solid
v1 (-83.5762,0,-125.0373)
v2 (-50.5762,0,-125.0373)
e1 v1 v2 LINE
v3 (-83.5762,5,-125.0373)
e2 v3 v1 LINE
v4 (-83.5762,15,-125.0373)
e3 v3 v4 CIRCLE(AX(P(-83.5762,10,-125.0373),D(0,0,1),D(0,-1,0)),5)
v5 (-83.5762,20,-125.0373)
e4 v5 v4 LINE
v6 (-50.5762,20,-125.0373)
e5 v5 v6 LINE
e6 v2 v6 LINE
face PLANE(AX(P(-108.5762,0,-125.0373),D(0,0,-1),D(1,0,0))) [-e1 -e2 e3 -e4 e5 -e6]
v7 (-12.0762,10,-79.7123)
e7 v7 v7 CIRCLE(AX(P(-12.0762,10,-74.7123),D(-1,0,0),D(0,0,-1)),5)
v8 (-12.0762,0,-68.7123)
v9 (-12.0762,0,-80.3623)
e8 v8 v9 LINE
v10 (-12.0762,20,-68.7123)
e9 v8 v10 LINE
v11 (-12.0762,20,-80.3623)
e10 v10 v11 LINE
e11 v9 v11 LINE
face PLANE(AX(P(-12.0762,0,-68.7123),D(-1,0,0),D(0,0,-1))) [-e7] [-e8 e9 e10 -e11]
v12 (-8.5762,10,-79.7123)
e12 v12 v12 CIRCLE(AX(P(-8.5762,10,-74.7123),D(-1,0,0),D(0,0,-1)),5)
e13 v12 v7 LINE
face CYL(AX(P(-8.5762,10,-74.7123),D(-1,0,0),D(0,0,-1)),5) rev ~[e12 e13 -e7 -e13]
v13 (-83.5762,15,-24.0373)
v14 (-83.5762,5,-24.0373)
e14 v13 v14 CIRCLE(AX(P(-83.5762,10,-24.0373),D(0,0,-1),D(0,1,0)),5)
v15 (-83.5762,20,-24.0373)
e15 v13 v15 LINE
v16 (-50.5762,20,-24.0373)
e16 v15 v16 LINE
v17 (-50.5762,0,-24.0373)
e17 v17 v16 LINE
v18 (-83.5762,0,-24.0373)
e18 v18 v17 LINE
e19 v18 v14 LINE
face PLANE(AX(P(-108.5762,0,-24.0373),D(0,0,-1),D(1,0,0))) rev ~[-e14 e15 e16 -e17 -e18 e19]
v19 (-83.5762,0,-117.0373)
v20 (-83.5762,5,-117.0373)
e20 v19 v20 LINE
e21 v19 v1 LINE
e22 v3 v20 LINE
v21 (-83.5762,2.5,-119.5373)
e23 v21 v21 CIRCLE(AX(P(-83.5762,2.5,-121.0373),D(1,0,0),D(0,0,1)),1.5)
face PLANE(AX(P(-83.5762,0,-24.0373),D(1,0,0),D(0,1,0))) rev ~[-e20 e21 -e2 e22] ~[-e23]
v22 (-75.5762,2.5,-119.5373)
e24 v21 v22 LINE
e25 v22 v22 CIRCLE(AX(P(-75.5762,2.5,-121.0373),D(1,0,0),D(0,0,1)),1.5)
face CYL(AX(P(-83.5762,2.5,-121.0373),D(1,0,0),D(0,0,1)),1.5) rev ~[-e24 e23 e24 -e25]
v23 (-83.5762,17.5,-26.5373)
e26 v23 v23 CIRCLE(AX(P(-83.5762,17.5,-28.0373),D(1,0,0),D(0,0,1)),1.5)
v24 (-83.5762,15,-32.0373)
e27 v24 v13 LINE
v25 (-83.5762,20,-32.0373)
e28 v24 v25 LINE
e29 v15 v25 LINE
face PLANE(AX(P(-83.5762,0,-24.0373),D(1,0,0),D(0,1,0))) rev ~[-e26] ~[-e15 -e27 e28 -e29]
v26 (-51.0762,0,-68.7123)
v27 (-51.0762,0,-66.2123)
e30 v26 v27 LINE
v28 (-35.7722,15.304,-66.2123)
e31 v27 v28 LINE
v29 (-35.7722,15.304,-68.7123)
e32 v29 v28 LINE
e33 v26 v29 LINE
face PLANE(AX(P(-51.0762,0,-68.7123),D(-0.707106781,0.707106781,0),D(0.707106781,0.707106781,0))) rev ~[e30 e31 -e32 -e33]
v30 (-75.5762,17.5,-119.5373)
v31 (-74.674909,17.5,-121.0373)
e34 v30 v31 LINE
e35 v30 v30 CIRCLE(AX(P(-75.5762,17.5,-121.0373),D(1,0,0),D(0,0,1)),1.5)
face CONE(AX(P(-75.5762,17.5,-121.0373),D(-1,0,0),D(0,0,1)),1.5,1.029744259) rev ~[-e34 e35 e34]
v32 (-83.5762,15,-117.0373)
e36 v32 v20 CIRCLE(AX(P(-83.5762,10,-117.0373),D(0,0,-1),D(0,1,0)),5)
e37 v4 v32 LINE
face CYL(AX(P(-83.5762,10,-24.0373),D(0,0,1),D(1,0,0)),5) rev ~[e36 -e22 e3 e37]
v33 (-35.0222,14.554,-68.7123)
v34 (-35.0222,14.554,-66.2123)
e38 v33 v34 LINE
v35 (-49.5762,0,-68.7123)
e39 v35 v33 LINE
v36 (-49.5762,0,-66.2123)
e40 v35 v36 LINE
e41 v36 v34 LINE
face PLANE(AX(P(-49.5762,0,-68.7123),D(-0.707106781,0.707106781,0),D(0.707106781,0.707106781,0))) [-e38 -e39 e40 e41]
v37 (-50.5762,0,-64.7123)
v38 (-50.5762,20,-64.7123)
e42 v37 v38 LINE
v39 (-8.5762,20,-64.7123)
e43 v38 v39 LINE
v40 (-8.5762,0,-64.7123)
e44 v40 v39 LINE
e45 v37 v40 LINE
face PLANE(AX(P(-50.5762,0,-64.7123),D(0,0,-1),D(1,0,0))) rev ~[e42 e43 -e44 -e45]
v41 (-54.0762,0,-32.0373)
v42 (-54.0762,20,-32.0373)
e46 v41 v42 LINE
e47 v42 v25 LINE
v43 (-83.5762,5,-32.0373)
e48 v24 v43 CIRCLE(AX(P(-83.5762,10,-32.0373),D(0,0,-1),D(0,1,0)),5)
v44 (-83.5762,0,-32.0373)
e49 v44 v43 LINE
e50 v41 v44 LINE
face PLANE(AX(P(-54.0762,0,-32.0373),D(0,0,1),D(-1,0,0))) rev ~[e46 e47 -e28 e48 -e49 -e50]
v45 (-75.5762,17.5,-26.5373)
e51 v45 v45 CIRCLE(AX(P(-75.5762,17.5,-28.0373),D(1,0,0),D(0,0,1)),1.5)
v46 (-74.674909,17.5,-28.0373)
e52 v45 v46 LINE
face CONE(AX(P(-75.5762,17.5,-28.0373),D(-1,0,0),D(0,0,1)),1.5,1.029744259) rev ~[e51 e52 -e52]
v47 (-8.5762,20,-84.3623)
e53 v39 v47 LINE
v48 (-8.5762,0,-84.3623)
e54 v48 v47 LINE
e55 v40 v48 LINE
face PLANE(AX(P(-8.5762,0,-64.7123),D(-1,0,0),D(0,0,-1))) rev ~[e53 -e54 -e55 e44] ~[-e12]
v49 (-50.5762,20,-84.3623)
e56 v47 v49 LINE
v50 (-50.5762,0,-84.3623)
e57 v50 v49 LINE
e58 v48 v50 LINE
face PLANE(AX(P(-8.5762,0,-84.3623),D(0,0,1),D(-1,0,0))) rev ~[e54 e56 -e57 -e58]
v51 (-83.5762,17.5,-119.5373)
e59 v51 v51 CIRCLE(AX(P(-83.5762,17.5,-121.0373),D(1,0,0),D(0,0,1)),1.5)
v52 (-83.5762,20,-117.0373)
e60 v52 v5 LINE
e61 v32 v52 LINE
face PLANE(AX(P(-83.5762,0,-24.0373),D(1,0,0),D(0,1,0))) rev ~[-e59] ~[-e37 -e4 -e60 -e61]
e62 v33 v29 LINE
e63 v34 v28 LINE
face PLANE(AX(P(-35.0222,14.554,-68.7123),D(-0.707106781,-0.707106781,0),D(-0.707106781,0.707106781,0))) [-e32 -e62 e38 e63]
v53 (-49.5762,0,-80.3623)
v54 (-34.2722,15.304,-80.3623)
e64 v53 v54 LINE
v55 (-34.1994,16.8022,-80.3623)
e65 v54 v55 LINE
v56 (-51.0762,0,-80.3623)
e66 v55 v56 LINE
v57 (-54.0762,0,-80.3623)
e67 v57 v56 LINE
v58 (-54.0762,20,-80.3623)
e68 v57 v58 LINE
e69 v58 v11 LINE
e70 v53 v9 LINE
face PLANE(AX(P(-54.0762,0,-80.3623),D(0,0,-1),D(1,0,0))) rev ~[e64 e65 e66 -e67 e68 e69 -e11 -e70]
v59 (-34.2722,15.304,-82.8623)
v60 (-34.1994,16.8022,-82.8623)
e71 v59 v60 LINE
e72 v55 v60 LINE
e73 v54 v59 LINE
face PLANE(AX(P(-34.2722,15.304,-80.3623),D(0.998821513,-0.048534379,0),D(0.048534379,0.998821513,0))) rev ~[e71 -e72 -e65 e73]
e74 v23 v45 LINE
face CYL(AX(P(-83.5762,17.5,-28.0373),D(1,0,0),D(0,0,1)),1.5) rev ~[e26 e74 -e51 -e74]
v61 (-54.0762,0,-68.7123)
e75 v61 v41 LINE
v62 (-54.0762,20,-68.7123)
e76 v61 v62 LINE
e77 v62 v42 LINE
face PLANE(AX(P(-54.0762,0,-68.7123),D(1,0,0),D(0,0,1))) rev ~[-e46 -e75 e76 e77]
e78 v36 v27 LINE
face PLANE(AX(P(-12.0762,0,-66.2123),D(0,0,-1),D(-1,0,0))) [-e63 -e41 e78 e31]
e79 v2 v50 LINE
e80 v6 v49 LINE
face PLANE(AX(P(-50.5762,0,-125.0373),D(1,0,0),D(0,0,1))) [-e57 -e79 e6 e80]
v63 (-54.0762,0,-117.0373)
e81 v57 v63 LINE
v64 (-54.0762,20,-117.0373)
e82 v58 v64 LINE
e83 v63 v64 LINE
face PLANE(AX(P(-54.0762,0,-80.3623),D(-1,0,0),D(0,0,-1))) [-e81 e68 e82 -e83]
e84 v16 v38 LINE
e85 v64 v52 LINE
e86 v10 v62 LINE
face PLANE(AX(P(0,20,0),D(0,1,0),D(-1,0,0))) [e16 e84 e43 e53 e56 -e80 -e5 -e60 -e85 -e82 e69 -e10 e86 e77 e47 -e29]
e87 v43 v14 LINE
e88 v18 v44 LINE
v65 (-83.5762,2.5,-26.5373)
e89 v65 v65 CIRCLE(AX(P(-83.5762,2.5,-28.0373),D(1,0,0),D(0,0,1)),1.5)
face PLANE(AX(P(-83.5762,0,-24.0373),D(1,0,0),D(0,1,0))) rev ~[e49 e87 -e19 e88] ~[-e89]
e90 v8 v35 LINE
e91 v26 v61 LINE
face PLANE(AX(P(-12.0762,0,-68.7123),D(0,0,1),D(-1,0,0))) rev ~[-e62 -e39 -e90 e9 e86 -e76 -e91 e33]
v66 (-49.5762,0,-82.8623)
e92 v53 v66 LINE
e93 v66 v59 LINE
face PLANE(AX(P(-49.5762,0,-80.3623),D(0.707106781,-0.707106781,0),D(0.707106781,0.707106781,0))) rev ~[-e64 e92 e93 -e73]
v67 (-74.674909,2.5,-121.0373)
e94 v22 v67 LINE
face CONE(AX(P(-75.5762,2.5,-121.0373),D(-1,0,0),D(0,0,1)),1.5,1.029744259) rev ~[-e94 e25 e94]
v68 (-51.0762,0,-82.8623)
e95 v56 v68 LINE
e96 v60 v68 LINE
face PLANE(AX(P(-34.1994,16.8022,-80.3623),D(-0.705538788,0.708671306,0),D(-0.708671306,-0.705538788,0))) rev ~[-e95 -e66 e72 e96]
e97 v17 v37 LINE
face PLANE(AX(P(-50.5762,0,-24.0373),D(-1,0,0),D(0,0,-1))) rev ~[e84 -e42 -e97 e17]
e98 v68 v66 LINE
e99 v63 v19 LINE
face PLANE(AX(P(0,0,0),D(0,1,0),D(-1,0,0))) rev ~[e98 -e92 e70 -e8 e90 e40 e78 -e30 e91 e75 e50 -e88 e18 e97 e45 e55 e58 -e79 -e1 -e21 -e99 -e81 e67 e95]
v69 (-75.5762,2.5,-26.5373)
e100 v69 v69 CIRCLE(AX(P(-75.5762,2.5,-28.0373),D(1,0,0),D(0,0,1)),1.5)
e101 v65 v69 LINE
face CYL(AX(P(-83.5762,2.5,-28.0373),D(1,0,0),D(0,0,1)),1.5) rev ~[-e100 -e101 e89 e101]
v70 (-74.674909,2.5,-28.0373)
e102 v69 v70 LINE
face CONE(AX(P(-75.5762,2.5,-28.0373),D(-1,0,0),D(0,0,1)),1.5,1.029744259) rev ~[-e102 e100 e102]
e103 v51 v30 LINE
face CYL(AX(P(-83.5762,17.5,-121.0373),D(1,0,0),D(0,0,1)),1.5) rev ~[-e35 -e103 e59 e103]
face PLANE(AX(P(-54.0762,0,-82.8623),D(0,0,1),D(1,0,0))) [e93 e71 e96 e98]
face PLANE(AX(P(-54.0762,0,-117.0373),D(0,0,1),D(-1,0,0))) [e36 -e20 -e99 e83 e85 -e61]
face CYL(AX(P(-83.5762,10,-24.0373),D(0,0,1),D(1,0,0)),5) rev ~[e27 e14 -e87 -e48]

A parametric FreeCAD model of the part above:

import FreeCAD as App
import Part
import Sketcher
Q = App.Units.Quantity


def add_polygon(sketch, points):
    """Adds a closed chain of lines whose ends are joined by coincident constraints."""
    first, n = sketch.GeometryCount, len(points)
    for a, b in zip(points, points[1:] + points[:1]):
        sketch.addGeometry(Part.LineSegment(App.Vector(*a, 0), App.Vector(*b, 0)), False)
    for i in range(n):
        sketch.addConstraint(Sketcher.Constraint("Coincident", first + i, 2, first + (i + 1) % n, 1))

doc = App.newDocument("Part")
body = doc.addObject("PartDesign::Body", "Body")

sketch1 = body.newObject("Sketcher::SketchObject", "Sketch")
sketch1.AttachmentSupport = (doc.getObject("XZ_Plane"), [""])
sketch1.MapMode = "FlatFace"
add_polygon(sketch1, [(-51, -24), (-51, -65), (-9, -65), (-9, -84), (-51, -84), (-51, -125), (-109, -125), (-109, -117), (-54, -117), (-54, -80), (-12, -80), (-12, -69), (-54, -69), (-54, -32), (-109, -32), (-109, -24)])
sketch1.addConstraint(Sketcher.Constraint("Vertical", 0))
sketch1.addConstraint(Sketcher.Constraint("Horizontal", 1))
sketch1.addConstraint(Sketcher.Constraint("Vertical", 2))
sketch1.addConstraint(Sketcher.Constraint("Horizontal", 3))
sketch1.addConstraint(Sketcher.Constraint("Vertical", 4))
sketch1.addConstraint(Sketcher.Constraint("Horizontal", 5))
sketch1.addConstraint(Sketcher.Constraint("Vertical", 6))
sketch1.addConstraint(Sketcher.Constraint("Horizontal", 7))
sketch1.addConstraint(Sketcher.Constraint("Vertical", 8))
sketch1.addConstraint(Sketcher.Constraint("Horizontal", 9))
sketch1.addConstraint(Sketcher.Constraint("Vertical", 10))
sketch1.addConstraint(Sketcher.Constraint("Horizontal", 11))
sketch1.addConstraint(Sketcher.Constraint("Vertical", 12))
sketch1.addConstraint(Sketcher.Constraint("Horizontal", 13))
sketch1.addConstraint(Sketcher.Constraint("Vertical", 14))
sketch1.addConstraint(Sketcher.Constraint("Horizontal", 15))
sketch1.addConstraint(Sketcher.Constraint("Vertical", 0, 2, 3, 2))
sketch1.addConstraint(Sketcher.Constraint("Vertical", 8, 2, 11, 2))
sketch1.addConstraint(Sketcher.Constraint("Vertical", 6, 2, 13, 2))
sketch1.addConstraint(Sketcher.Constraint("Equal", 3, 9))
sketch1.addConstraint(Sketcher.Constraint("Equal", 0, 4))
sketch1.addConstraint(Sketcher.Constraint("Equal", 8, 12))
sketch1.addConstraint(Sketcher.Constraint("Equal", 6, 14))
sketch1.addConstraint(Sketcher.Constraint("DistanceX", 1, 1, 1, 2, Q("42 mm")))
sketch1.addConstraint(Sketcher.Constraint("DistanceY", 6, 1, 6, 2, Q("8 mm")))
sketch1.addConstraint(Sketcher.Constraint("DistanceX", 5, 2, 2, 2, Q("100 mm")))
sketch1.addConstraint(Sketcher.Constraint("DistanceY", 3, 2, 8, 2, Q("4 mm")))
sketch1.addConstraint(Sketcher.Constraint("DistanceY", 10, 1, 10, 2, Q("11.65 mm")))
sketch1.addConstraint(Sketcher.Constraint("DistanceX", 7, 2, 4, 2, Q("3.5 mm")))
sketch1.addConstraint(Sketcher.Constraint("DistanceY", 8, 1, 8, 2, Q("36.675 mm")))
sketch1.addConstraint(Sketcher.Constraint("DistanceX", 0, 2, -1, 1, Q("50.5762 mm")))
sketch1.addConstraint(Sketcher.Constraint("DistanceY", 0, 2, -1, 1, Q("64.7123 mm")))
pad1 = body.newObject("PartDesign::Pad", "Pad")
pad1.Profile = sketch1
pad1.Length = 20
pad1.Reversed = True

sketch2 = body.newObject("Sketcher::SketchObject", "Sketch001")
sketch2.AttachmentSupport = (doc.getObject("XY_Plane"), [""])
sketch2.MapMode = "FlatFace"
sketch2.AttachmentOffset = App.Placement(App.Vector(0, 0, -68.7123), App.Rotation())
add_polygon(sketch2, [(-49.6, 0), (-51.1, 0), (-35.8, 15.3), (-35, 14.6)])
sketch2.addConstraint(Sketcher.Constraint("Horizontal", 0))
sketch2.addConstraint(Sketcher.Constraint("PointOnObject", 0, 2, -1))
sketch2.addConstraint(Sketcher.Constraint("Perpendicular", 1, 2))
sketch2.addConstraint(Sketcher.Constraint("Perpendicular", 2, 3))
sketch2.addConstraint(Sketcher.Constraint("DistanceX", 0, 2, 0, 1, Q("1.5 mm")))
sketch2.addConstraint(Sketcher.Constraint("Angle", 1, Q("45 deg")))
sketch2.addConstraint(Sketcher.Constraint("DistanceY", -1, 1, 1, 2, Q("15.304 mm")))
sketch2.addConstraint(Sketcher.Constraint("DistanceX", 0, 2, -1, 1, Q("51.0762 mm")))
pocket1 = body.newObject("PartDesign::Pocket", "Pocket")
pocket1.Profile = sketch2
pocket1.Length = 2.5
pocket1.Reversed = True

sketch3 = body.newObject("Sketcher::SketchObject", "Sketch002")
sketch3.AttachmentSupport = (doc.getObject("XY_Plane"), [""])
sketch3.MapMode = "FlatFace"
sketch3.AttachmentOffset = App.Placement(App.Vector(0, 0, -24.0373), App.Rotation())
sketch3.addGeometry(Part.Circle(App.Vector(-109, 10, 0), App.Vector(0, 0, 1), 5), False)
sketch3.addConstraint(Sketcher.Constraint("Diameter", 0, Q("10 mm")))
sketch3.addConstraint(Sketcher.Constraint("DistanceY", -1, 1, 0, 3, Q("10 mm")))
sketch3.addConstraint(Sketcher.Constraint("DistanceX", 0, 3, -1, 1, Q("108.5762 mm")))
pocket2 = body.newObject("PartDesign::Pocket", "Pocket001")
pocket2.Profile = sketch3
pocket2.Length = 200

sketch4 = body.newObject("Sketcher::SketchObject", "Sketch003")
sketch4.AttachmentSupport = (doc.getObject("XY_Plane"), [""])
sketch4.MapMode = "FlatFace"
sketch4.AttachmentOffset = App.Placement(App.Vector(0, 0, -80.3623), App.Rotation())
add_polygon(sketch4, [(-34.2, 16.8), (-51.1, 0), (-49.6, 0), (-34.3, 15.3)])
sketch4.addConstraint(Sketcher.Constraint("Horizontal", 1))
sketch4.addConstraint(Sketcher.Constraint("PointOnObject", 0, 2, -1))
sketch4.addConstraint(Sketcher.Constraint("Angle", 2, Q("45 deg")))
sketch4.addConstraint(Sketcher.Constraint("DistanceX", 1, 1, 1, 2, Q("1.5 mm")))
sketch4.addConstraint(Sketcher.Constraint("Distance", 3, Q("1.5 mm")))
sketch4.addConstraint(Sketcher.Constraint("DistanceY", -1, 1, 2, 2, Q("15.304 mm")))
sketch4.addConstraint(Sketcher.Constraint("Distance", 0, Q("23.8147 mm")))
sketch4.addConstraint(Sketcher.Constraint("DistanceX", 0, 2, -1, 1, Q("51.0762 mm")))
pocket3 = body.newObject("PartDesign::Pocket", "Pocket002")
pocket3.Profile = sketch4
pocket3.Length = 2.5

sketch5 = body.newObject("Sketcher::SketchObject", "Sketch004")
sketch5.AttachmentSupport = (doc.getObject("YZ_Plane"), [""])
sketch5.MapMode = "FlatFace"
sketch5.AttachmentOffset = App.Placement(App.Vector(0, 0, -108.5762), App.Rotation())
sketch5.addGeometry(Part.Circle(App.Vector(17.5, -28, 0), App.Vector(0, 0, 1), 1.4), False)
sketch5.addGeometry(Part.Circle(App.Vector(2.5, -28.2, 0), App.Vector(0, 0, 1), 1.4), False)
sketch5.addConstraint(Sketcher.Constraint("Equal", 0, 1))
sketch5.addConstraint(Sketcher.Constraint("Diameter", 0, Q("2.75 mm")))
sketch5.addConstraint(Sketcher.Constraint("DistanceX", 1, 3, 0, 3, Q("15 mm")))
sketch5.addConstraint(Sketcher.Constraint("DistanceX", -1, 1, 0, 3, Q("17.5 mm")))
sketch5.addConstraint(Sketcher.Constraint("DistanceY", 1, 3, -1, 1, Q("28.239 mm")))
sketch5.addConstraint(Sketcher.Constraint("DistanceY", 0, 3, -1, 1, Q("28.0373 mm")))
doc.recompute()
hole = body.newObject("PartDesign::Hole", "Hole")
hole.Profile = sketch5
hole.ThreadType = "None"
hole.Diameter = 2.75
hole.DepthType = "Dimension"
hole.Depth = 8
hole.DrillPoint = "Angled"
hole.DrillPointAngle = 118
hole.Reversed = True

sketch6 = body.newObject("Sketcher::SketchObject", "Sketch005")
sketch6.AttachmentSupport = (doc.getObject("YZ_Plane"), [""])
sketch6.MapMode = "FlatFace"
sketch6.AttachmentOffset = App.Placement(App.Vector(0, 0, -108.5762), App.Rotation())
sketch6.addGeometry(Part.Circle(App.Vector(2.5, -121.1, 0), App.Vector(0, 0, 1), 1.4), False)
sketch6.addGeometry(Part.Circle(App.Vector(17.5, -121, 0), App.Vector(0, 0, 1), 1.4), False)
sketch6.addConstraint(Sketcher.Constraint("Equal", 0, 1))
sketch6.addConstraint(Sketcher.Constraint("Diameter", 0, Q("2.75 mm")))
sketch6.addConstraint(Sketcher.Constraint("DistanceX", 0, 3, 1, 3, Q("15 mm")))
sketch6.addConstraint(Sketcher.Constraint("DistanceX", -1, 1, 0, 3, Q("2.5 mm")))
sketch6.addConstraint(Sketcher.Constraint("DistanceY", 0, 3, -1, 1, Q("121.087 mm")))
sketch6.addConstraint(Sketcher.Constraint("DistanceY", 1, 3, -1, 1, Q("121.0373 mm")))
doc.recompute()
hole2 = body.newObject("PartDesign::Hole", "Hole001")
hole2.Profile = sketch6
hole2.ThreadType = "None"
hole2.Diameter = 2.75
hole2.DepthType = "Dimension"
hole2.Depth = 8
hole2.DrillPoint = "Angled"
hole2.DrillPointAngle = 118
hole2.Reversed = True

sketch7 = body.newObject("Sketcher::SketchObject", "Sketch006")
sketch7.AttachmentSupport = (doc.getObject("YZ_Plane"), [""])
sketch7.MapMode = "FlatFace"
sketch7.AttachmentOffset = App.Placement(App.Vector(0, 0, -8.5762), App.Rotation())
sketch7.addGeometry(Part.Circle(App.Vector(10, -75, 0), App.Vector(0, 0, 1), 5), False)
sketch7.addConstraint(Sketcher.Constraint("Diameter", 0, Q("10 mm")))
sketch7.addConstraint(Sketcher.Constraint("DistanceX", -1, 1, 0, 3, Q("10 mm")))
sketch7.addConstraint(Sketcher.Constraint("DistanceY", 0, 3, -1, 1, Q("74.7123 mm")))
doc.recompute()
hole3 = body.newObject("PartDesign::Hole", "Hole002")
hole3.Profile = sketch7
hole3.ThreadType = "None"
hole3.Diameter = 10
hole3.DepthType = "Dimension"
hole3.Depth = 5
hole3.DrillPoint = "Angled"
hole3.DrillPointAngle = 118

sketch8 = body.newObject("Sketcher::SketchObject", "Sketch007")
sketch8.AttachmentSupport = (doc.getObject("XY_Plane"), [""])
sketch8.MapMode = "FlatFace"
sketch8.AttachmentOffset = App.Placement(App.Vector(0, 0, -24.0373), App.Rotation())
add_polygon(sketch8, [(-84, 0), (-84, 20), (-109, 20), (-109, 0)])
sketch8.addConstraint(Sketcher.Constraint("Vertical", 0))
sketch8.addConstraint(Sketcher.Constraint("Horizontal", 1))
sketch8.addConstraint(Sketcher.Constraint("Vertical", 2))
sketch8.addConstraint(Sketcher.Constraint("Horizontal", 3))
sketch8.addConstraint(Sketcher.Constraint("PointOnObject", 2, 2, -1))
sketch8.addConstraint(Sketcher.Constraint("DistanceX", 1, 2, 1, 1, Q("25 mm")))
sketch8.addConstraint(Sketcher.Constraint("DistanceY", 0, 1, 0, 2, Q("20 mm")))
sketch8.addConstraint(Sketcher.Constraint("DistanceX", 0, 2, -1, 1, Q("83.5762 mm")))
pocket4 = body.newObject("PartDesign::Pocket", "Pocket003")
pocket4.Profile = sketch8
pocket4.Length = 120

sketch9 = body.newObject("Sketcher::SketchObject", "Sketch008")
sketch9.AttachmentSupport = (doc.getObject("XY_Plane"), [""])
sketch9.MapMode = "FlatFace"
sketch9.AttachmentOffset = App.Placement(App.Vector(0, 0, -24.0373), App.Rotation())
sketch9.addGeometry(Part.Circle(App.Vector(-84, 10, 0), App.Vector(0, 0, 1), 5), False)
sketch9.addConstraint(Sketcher.Constraint("Diameter", 0, Q("10 mm")))
sketch9.addConstraint(Sketcher.Constraint("DistanceY", -1, 1, 0, 3, Q("10 mm")))
sketch9.addConstraint(Sketcher.Constraint("DistanceX", 0, 3, -1, 1, Q("83.5762 mm")))
pocket5 = body.newObject("PartDesign::Pocket", "Pocket004")
pocket5.Profile = sketch9
pocket5.Length = 120

sketch10 = body.newObject("Sketcher::SketchObject", "Sketch009")
sketch10.AttachmentSupport = (doc.getObject("YZ_Plane"), [""])
sketch10.MapMode = "FlatFace"
sketch10.AttachmentOffset = App.Placement(App.Vector(0, 0, -83.5762), App.Rotation())
sketch10.addGeometry(Part.Circle(App.Vector(2.5, -28, 0), App.Vector(0, 0, 1), 1.5), False)
sketch10.addGeometry(Part.Circle(App.Vector(17.5, -28, 0), App.Vector(0, 0, 1), 1.5), False)
sketch10.addGeometry(Part.Circle(App.Vector(17.5, -121, 0), App.Vector(0, 0, 1), 1.5), False)
sketch10.addGeometry(Part.Circle(App.Vector(2.5, -121, 0), App.Vector(0, 0, 1), 1.5), False)
sketch10.addConstraint(Sketcher.Constraint("Equal", 0, 1))
sketch10.addConstraint(Sketcher.Constraint("Equal", 1, 2))
sketch10.addConstraint(Sketcher.Constraint("Equal", 2, 3))
sketch10.addConstraint(Sketcher.Constraint("Horizontal", 0, 3, 1, 3))
sketch10.addConstraint(Sketcher.Constraint("Horizontal", 2, 3, 3, 3))
sketch10.addConstraint(Sketcher.Constraint("Vertical", 1, 3, 2, 3))
sketch10.addConstraint(Sketcher.Constraint("Vertical", 0, 3, 3, 3))
sketch10.addConstraint(Sketcher.Constraint("Diameter", 0, Q("3 mm")))
sketch10.addConstraint(Sketcher.Constraint("DistanceX", 0, 3, 1, 3, Q("15 mm")))
sketch10.addConstraint(Sketcher.Constraint("DistanceY", 2, 3, 1, 3, Q("93 mm")))
sketch10.addConstraint(Sketcher.Constraint("DistanceX", -1, 1, 0, 3, Q("2.5 mm")))
sketch10.addConstraint(Sketcher.Constraint("DistanceY", 0, 3, -1, 1, Q("28.0373 mm")))
doc.recompute()
hole4 = body.newObject("PartDesign::Hole", "Hole003")
hole4.Profile = sketch10
hole4.ThreadType = "None"
hole4.Diameter = 3
hole4.DepthType = "Dimension"
hole4.Depth = 8
hole4.DrillPoint = "Angled"
hole4.DrillPointAngle = 118
hole4.Reversed = True

doc.recompute()
